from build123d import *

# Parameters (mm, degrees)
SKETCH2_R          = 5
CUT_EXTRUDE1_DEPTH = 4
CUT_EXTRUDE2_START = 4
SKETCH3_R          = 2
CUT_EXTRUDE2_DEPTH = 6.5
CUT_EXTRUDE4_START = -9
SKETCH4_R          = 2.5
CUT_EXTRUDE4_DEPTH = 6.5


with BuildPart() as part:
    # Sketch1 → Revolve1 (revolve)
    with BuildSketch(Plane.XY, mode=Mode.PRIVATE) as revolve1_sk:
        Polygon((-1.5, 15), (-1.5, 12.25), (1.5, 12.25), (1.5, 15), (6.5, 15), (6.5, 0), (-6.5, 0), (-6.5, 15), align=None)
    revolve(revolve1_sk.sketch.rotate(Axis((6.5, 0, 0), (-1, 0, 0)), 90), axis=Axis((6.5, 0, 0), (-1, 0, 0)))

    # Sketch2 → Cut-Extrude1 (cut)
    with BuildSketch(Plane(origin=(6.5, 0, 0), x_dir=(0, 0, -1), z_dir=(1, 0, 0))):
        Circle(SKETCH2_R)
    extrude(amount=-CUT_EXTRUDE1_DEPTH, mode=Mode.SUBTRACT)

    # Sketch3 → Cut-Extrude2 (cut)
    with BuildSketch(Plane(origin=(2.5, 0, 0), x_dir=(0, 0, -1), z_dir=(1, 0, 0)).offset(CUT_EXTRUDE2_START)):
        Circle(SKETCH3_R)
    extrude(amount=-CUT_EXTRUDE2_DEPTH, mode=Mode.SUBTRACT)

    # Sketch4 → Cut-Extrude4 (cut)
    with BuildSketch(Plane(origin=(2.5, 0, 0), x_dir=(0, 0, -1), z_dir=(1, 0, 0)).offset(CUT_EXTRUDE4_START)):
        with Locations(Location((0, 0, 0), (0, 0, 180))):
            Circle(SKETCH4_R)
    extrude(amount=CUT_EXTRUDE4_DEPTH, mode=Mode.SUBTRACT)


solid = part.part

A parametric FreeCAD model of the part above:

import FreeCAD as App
import Part
import Sketcher
from FreeCAD import Vector

doc = App.newDocument("Part")
body = doc.addObject("PartDesign::Body", "Body")

# Sketch on XY plane
sketch1 = body.newObject("Sketcher::SketchObject", "Sketch")
sketch1.AttachmentSupport = (doc.getObject("XY_Plane"), [""])
sketch1.MapMode = "FlatFace"
sketch1.addGeometry(Part.LineSegment(Vector(-1.5, 12.2, 0), Vector(-1.5, 15, 0)), False)
sketch1.addGeometry(Part.LineSegment(Vector(-1.5, 15, 0), Vector(-6.5, 15, 0)), False)
sketch1.addGeometry(Part.LineSegment(Vector(-6.5, 15, 0), Vector(-6.5, 0, 0)), False)
sketch1.addGeometry(Part.LineSegment(Vector(-6.5, 0, 0), Vector(6.5, 0, 0)), False)
sketch1.addGeometry(Part.LineSegment(Vector(6.5, 0, 0), Vector(6.5, 15, 0)), False)
sketch1.addGeometry(Part.LineSegment(Vector(6.5, 15, 0), Vector(1.5, 15, 0)), False)
sketch1.addGeometry(Part.LineSegment(Vector(1.5, 15, 0), Vector(1.5, 12.2, 0)), False)
sketch1.addGeometry(Part.LineSegment(Vector(1.5, 12.2, 0), Vector(-1.5, 12.2, 0)), False)
sketch1.addConstraint(Sketcher.Constraint("Coincident", 0, 2, 1, 1))
sketch1.addConstraint(Sketcher.Constraint("Coincident", 1, 2, 2, 1))
sketch1.addConstraint(Sketcher.Constraint("Coincident", 2, 2, 3, 1))
sketch1.addConstraint(Sketcher.Constraint("Coincident", 3, 2, 4, 1))
sketch1.addConstraint(Sketcher.Constraint("Coincident", 4, 2, 5, 1))
sketch1.addConstraint(Sketcher.Constraint("Coincident", 5, 2, 6, 1))
sketch1.addConstraint(Sketcher.Constraint("Coincident", 6, 2, 7, 1))
sketch1.addConstraint(Sketcher.Constraint("Coincident", 7, 2, 0, 1))
sketch1.addConstraint(Sketcher.Constraint("Vertical", 0))
sketch1.addConstraint(Sketcher.Constraint("Horizontal", 1))
sketch1.addConstraint(Sketcher.Constraint("Vertical", 2))
sketch1.addConstraint(Sketcher.Constraint("Horizontal", 3))
sketch1.addConstraint(Sketcher.Constraint("Vertical", 4))
sketch1.addConstraint(Sketcher.Constraint("Horizontal", 5))
sketch1.addConstraint(Sketcher.Constraint("Vertical", 6))
sketch1.addConstraint(Sketcher.Constraint("Horizontal", 7))
sketch1.addConstraint(Sketcher.Constraint("Symmetric", 2, 2, 3, 2, -1, 1))
sketch1.addConstraint(Sketcher.Constraint("Symmetric", 0, 2, 5, 2, -2))
sketch1.addConstraint(Sketcher.Constraint("DistanceX", 1, 2, 1, 1, 5.0))
sketch1.addConstraint(Sketcher.Constraint("DistanceX", 3, 1, 3, 2, 13.0))
sketch1.addConstraint(Sketcher.Constraint("DistanceY", 2, 2, 2, 1, 15.0))
sketch1.addConstraint(Sketcher.Constraint("DistanceY", 0, 1, 0, 2, 2.75))
revolution = body.newObject("PartDesign::Revolution", "Revolution")
revolution.Profile = sketch1
revolution.ReferenceAxis = (sketch1, ["H_Axis"])
revolution.Angle = 360

# Sketch on YZ plane
sketch2 = body.newObject("Sketcher::SketchObject", "Sketch001")
sketch2.AttachmentSupport = (doc.getObject("YZ_Plane"), [""])
sketch2.MapMode = "FlatFace"
sketch2.AttachmentOffset = App.Placement(Vector(0, 0, 6.5), App.Rotation())
sketch2.addGeometry(Part.Circle(Vector(0, 0, 0), Vector(0, 0, 1), 5), False)
sketch2.addConstraint(Sketcher.Constraint("Coincident", 0, 3, -1, 1))
sketch2.addConstraint(Sketcher.Constraint("Diameter", 0, 10.0))
pocket1 = body.newObject("PartDesign::Pocket", "Pocket")
pocket1.Profile = sketch2
pocket1.Length = 4

# Sketch on YZ plane
sketch3 = body.newObject("Sketcher::SketchObject", "Sketch002")
sketch3.AttachmentSupport = (doc.getObject("YZ_Plane"), [""])
sketch3.MapMode = "FlatFace"
sketch3.AttachmentOffset = App.Placement(Vector(0, 0, 6.5), App.Rotation())
sketch3.addGeometry(Part.Circle(Vector(0, 0, 0), Vector(0, 0, 1), 2), False)
sketch3.addConstraint(Sketcher.Constraint("Coincident", 0, 3, -1, 1))
sketch3.addConstraint(Sketcher.Constraint("Diameter", 0, 4.0))
pocket2 = body.newObject("PartDesign::Pocket", "Pocket001")
pocket2.Profile = sketch3
pocket2.Length = 6.5

# Sketch on YZ plane
sketch4 = body.newObject("Sketcher::SketchObject", "Sketch003")
sketch4.AttachmentSupport = (doc.getObject("YZ_Plane"), [""])
sketch4.MapMode = "FlatFace"
sketch4.AttachmentOffset = App.Placement(Vector(0, 0, -6.5), App.Rotation())
sketch4.addGeometry(Part.Circle(Vector(0, 0, 0), Vector(0, 0, 1), 2.5), False)
sketch4.addConstraint(Sketcher.Constraint("Coincident", 0, 3, -1, 1))
sketch4.addConstraint(Sketcher.Constraint("Diameter", 0, 5.0))
pocket3 = body.newObject("PartDesign::Pocket", "Pocket002")
pocket3.Profile = sketch4
pocket3.Length = 6.5
pocket3.Reversed = True

doc.recompute()
